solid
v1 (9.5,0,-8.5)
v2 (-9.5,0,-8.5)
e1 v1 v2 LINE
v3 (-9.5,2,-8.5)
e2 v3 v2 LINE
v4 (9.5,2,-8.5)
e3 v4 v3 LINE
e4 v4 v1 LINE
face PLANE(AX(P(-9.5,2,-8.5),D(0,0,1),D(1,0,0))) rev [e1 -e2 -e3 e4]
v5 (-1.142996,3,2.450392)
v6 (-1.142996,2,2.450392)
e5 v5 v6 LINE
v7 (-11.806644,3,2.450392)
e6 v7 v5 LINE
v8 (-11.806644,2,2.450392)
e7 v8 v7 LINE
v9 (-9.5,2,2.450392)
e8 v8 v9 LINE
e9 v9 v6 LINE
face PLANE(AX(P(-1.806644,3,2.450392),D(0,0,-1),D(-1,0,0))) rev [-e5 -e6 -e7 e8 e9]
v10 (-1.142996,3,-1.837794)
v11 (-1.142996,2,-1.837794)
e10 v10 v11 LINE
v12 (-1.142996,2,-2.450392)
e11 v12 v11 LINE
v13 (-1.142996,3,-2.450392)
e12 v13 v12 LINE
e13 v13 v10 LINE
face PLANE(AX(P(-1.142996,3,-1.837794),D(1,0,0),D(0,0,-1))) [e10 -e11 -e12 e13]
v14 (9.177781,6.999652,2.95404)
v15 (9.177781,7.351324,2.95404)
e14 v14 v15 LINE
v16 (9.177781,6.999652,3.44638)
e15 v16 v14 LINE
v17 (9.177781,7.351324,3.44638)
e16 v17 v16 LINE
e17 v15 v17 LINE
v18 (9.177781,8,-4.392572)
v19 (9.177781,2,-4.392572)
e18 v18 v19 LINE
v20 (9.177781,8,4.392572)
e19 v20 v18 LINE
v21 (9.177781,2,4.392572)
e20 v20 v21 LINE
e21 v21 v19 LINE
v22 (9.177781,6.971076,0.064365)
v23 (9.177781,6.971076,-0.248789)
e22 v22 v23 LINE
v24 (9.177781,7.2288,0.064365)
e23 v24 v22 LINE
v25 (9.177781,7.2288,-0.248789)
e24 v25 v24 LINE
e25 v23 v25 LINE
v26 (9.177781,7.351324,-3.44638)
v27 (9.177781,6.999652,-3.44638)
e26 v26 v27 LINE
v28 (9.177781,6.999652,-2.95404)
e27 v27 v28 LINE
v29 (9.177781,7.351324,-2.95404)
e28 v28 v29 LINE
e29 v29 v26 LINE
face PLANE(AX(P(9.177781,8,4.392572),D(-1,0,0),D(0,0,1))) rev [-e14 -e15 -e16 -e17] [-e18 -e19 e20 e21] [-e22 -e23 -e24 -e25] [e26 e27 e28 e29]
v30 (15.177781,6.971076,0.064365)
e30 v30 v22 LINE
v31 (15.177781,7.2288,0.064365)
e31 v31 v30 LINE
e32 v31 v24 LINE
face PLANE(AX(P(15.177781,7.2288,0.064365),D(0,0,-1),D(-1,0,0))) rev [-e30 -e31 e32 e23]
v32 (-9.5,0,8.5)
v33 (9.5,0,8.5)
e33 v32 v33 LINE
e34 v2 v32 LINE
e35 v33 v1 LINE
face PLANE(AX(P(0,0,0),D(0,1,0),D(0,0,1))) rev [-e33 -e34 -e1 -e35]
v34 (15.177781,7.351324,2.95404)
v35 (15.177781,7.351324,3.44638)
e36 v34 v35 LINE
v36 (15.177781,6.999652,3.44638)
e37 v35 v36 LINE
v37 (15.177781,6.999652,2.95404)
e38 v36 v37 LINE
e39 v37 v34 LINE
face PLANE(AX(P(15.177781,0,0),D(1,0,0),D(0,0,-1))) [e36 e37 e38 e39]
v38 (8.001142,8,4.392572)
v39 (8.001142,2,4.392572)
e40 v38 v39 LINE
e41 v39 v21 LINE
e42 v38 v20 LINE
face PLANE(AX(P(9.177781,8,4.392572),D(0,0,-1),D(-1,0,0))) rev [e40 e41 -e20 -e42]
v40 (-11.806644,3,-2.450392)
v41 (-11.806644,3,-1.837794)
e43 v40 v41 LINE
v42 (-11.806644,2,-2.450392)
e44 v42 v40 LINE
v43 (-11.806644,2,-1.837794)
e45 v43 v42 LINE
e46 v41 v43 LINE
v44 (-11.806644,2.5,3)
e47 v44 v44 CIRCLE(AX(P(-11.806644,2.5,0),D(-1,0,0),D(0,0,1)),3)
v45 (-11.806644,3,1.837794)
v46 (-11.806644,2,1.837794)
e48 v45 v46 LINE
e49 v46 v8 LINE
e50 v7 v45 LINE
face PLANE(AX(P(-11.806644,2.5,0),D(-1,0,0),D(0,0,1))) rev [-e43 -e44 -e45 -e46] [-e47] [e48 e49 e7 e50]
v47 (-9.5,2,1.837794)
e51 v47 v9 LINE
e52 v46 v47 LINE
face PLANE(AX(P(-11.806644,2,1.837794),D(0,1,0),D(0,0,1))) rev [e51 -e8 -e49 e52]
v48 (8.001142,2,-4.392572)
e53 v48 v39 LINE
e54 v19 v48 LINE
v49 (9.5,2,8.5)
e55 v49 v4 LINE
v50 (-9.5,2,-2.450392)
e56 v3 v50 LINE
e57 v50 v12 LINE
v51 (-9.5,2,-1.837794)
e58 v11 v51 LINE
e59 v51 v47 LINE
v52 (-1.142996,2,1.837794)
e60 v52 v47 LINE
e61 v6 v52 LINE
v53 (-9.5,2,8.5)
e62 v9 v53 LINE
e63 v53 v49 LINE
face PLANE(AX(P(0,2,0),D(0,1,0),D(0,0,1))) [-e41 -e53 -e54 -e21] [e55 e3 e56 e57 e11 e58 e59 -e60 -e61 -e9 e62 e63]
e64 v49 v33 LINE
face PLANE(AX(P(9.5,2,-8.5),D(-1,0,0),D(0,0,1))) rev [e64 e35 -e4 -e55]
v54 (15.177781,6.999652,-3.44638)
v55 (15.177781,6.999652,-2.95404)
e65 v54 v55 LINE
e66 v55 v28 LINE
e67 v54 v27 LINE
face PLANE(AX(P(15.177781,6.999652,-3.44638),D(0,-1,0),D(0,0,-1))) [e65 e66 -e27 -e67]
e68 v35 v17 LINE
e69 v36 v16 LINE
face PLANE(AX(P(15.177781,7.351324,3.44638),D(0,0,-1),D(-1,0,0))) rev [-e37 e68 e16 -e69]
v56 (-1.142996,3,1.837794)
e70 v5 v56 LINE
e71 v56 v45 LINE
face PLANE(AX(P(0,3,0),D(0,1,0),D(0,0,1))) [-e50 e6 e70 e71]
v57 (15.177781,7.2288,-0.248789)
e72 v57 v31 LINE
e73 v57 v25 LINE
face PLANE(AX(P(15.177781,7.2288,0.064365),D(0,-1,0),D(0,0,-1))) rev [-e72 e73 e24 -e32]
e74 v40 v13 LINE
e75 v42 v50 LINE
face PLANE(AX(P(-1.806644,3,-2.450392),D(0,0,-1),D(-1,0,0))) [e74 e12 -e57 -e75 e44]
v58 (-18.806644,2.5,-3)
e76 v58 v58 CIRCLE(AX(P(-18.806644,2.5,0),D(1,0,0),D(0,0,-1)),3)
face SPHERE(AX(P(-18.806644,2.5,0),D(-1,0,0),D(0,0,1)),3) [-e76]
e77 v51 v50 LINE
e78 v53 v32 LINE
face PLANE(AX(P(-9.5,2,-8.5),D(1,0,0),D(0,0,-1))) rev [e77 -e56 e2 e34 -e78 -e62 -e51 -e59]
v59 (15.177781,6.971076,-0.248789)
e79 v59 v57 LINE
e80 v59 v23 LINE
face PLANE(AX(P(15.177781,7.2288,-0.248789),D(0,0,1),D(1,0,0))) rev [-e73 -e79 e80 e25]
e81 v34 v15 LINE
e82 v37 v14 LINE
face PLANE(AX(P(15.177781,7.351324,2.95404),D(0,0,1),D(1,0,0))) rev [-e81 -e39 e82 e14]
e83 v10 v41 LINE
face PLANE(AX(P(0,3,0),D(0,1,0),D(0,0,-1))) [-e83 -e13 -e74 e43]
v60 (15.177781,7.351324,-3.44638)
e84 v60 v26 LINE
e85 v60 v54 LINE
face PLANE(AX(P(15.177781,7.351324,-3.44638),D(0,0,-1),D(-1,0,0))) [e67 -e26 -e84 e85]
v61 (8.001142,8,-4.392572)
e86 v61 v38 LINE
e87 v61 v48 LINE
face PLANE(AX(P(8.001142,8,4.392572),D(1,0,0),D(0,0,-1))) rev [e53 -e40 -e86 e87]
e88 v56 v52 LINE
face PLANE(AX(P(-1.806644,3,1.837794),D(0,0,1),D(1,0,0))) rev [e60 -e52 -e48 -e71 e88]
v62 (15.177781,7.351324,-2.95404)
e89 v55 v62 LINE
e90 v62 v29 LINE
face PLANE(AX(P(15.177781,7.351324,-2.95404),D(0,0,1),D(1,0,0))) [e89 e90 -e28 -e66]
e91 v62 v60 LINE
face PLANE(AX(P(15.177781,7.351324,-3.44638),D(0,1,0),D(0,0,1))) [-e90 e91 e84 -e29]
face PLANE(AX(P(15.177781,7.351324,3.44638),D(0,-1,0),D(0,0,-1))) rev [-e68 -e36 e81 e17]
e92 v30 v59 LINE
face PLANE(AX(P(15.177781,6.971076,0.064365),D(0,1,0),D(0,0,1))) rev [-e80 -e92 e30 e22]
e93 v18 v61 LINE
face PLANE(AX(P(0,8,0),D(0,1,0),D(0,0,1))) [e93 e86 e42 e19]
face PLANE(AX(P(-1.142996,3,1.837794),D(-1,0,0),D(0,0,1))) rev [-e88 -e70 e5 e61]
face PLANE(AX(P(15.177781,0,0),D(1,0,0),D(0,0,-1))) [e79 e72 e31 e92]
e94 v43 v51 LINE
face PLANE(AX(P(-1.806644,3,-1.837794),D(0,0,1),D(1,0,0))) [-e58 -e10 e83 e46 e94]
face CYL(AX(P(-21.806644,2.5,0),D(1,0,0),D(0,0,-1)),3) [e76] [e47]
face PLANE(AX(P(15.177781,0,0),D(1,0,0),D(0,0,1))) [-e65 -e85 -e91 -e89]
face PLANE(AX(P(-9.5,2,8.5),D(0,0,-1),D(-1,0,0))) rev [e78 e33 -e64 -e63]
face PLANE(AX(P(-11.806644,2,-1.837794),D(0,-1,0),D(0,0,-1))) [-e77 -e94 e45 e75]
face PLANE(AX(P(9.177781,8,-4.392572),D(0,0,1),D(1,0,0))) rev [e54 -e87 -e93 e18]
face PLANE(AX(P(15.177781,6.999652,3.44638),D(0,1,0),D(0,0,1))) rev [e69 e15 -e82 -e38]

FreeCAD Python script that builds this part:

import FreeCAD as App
import Part
import Sketcher
from FreeCAD import Vector
Q = App.Units.Quantity


def edges_at(feature, points):
    """Names of the edges that pass closest to the given points."""
    edges = feature.Shape.Edges
    near = lambda p: min(range(len(edges)), key=lambda i: edges[i].distToShape(Part.Vertex(*p))[0])
    return sorted({f"Edge{near(p) + 1}" for p in points})


def add_polygon(sketch, points):
    """Adds a closed chain of lines whose ends are joined by coincident constraints."""
    first, n = sketch.GeometryCount, len(points)
    for a, b in zip(points, points[1:] + points[:1]):
        sketch.addGeometry(Part.LineSegment(App.Vector(*a, 0), App.Vector(*b, 0)), False)
    for i in range(n):
        sketch.addConstraint(Sketcher.Constraint("Coincident", first + i, 2, first + (i + 1) % n, 1))

doc = App.newDocument("Part")
body = doc.addObject("PartDesign::Body", "Body")

sketch1 = doc.addObject("Sketcher::SketchObject", "Sketch")
body.addObject(sketch1)
sketch1.AttachmentSupport = (doc.XZ_Plane, [""])
sketch1.MapMode = "FlatFace"
add_polygon(sketch1, [(-10, -8), (-10, 8), (10, 8), (10, -8)])
sketch1.addConstraint(Sketcher.Constraint("Vertical", 0))
sketch1.addConstraint(Sketcher.Constraint("Horizontal", 1))
sketch1.addConstraint(Sketcher.Constraint("Vertical", 2))
sketch1.addConstraint(Sketcher.Constraint("Horizontal", 3))
sketch1.addConstraint(Sketcher.Constraint("Symmetric", 0, 2, 2, 2, -1, 1))
sketch1.addConstraint(Sketcher.Constraint("DistanceX", 1, 1, 1, 2, Q("19 mm")))
sketch1.addConstraint(Sketcher.Constraint("DistanceY", 0, 1, 0, 2, Q("17 mm")))
pad1 = doc.addObject("PartDesign::Pad", "Pad")
body.addObject(pad1)
pad1.Profile = sketch1
pad1.Length = 2
pad1.Reversed = True

sketch2 = doc.addObject("Sketcher::SketchObject", "Sketch001")
body.addObject(sketch2)
sketch2.AttachmentSupport = (doc.XZ_Plane, [""])
sketch2.MapMode = "FlatFace"
sketch2.AttachmentOffset = App.Placement(Vector(0, 0, -2), App.Rotation())
add_polygon(sketch2, [(8, -4.4), (8, 4.4), (9.2, 4.4), (9.2, -4.4)])
sketch2.addConstraint(Sketcher.Constraint("Vertical", 0))
sketch2.addConstraint(Sketcher.Constraint("Horizontal", 1))
sketch2.addConstraint(Sketcher.Constraint("Vertical", 2))
sketch2.addConstraint(Sketcher.Constraint("Horizontal", 3))
sketch2.addConstraint(Sketcher.Constraint("DistanceX", 1, 1, 1, 2, Q("1.176639 mm")))
sketch2.addConstraint(Sketcher.Constraint("DistanceY", 0, 1, 0, 2, Q("8.785143 mm")))
sketch2.addConstraint(Sketcher.Constraint("DistanceY", -1, 1, 0, 2, Q("4.392572 mm")))
sketch2.addConstraint(Sketcher.Constraint("DistanceX", -1, 1, 1, 2, Q("9.177781 mm")))
pad2 = doc.addObject("PartDesign::Pad", "Pad001")
body.addObject(pad2)
pad2.Profile = sketch2
pad2.Length = 6
pad2.Reversed = True

sketch3 = doc.addObject("Sketcher::SketchObject", "Sketch002")
body.addObject(sketch3)
sketch3.AttachmentSupport = (doc.YZ_Plane, [""])
sketch3.MapMode = "FlatFace"
sketch3.AttachmentOffset = App.Placement(Vector(0, 0, 9.177781), App.Rotation())
add_polygon(sketch3, [(7.35, 3.45), (7, 3.45), (7, 2.95), (7.35, 2.95)])
sketch3.addConstraint(Sketcher.Constraint("Horizontal", 0))
sketch3.addConstraint(Sketcher.Constraint("Vertical", 1))
sketch3.addConstraint(Sketcher.Constraint("Horizontal", 2))
sketch3.addConstraint(Sketcher.Constraint("Vertical", 3))
sketch3.addConstraint(Sketcher.Constraint("DistanceX", 0, 2, 0, 1, Q("0.351671 mm")))
sketch3.addConstraint(Sketcher.Constraint("DistanceY", 1, 2, 1, 1, Q("0.49234 mm")))
sketch3.addConstraint(Sketcher.Constraint("DistanceY", -1, 1, 0, 2, Q("3.44638 mm")))
sketch3.addConstraint(Sketcher.Constraint("DistanceX", -1, 1, 0, 2, Q("6.999652 mm")))
pad3 = doc.addObject("PartDesign::Pad", "Pad002")
body.addObject(pad3)
pad3.Profile = sketch3
pad3.Length = 6
doc.recompute()

mirrored = doc.addObject("PartDesign::Mirrored", "Mirrored")
body.addObject(mirrored)
mirrored.Originals = [pad3]
mirrored.MirrorPlane = (doc.XY_Plane, [""])
body.Tip = mirrored

sketch4 = doc.addObject("Sketcher::SketchObject", "Sketch003")
body.addObject(sketch4)
sketch4.AttachmentSupport = (doc.YZ_Plane, [""])
sketch4.MapMode = "FlatFace"
sketch4.AttachmentOffset = App.Placement(Vector(0, 0, 9.177781), App.Rotation())
add_polygon(sketch4, [(7.23, 0.06), (6.97, 0.06), (6.97, -0.25), (7.23, -0.25)])
sketch4.addConstraint(Sketcher.Constraint("Horizontal", 0))
sketch4.addConstraint(Sketcher.Constraint("Vertical", 1))
sketch4.addConstraint(Sketcher.Constraint("Horizontal", 2))
sketch4.addConstraint(Sketcher.Constraint("Vertical", 3))
sketch4.addConstraint(Sketcher.Constraint("DistanceX", -1, 1, 2, 2, Q("7.2288 mm")))
sketch4.addConstraint(Sketcher.Constraint("DistanceX", 0, 2, 0, 1, Q("0.257724 mm")))
sketch4.addConstraint(Sketcher.Constraint("DistanceY", 1, 2, 1, 1, Q("0.313154 mm")))
sketch4.addConstraint(Sketcher.Constraint("DistanceY", 1, 2, -1, 1, Q("0.248789 mm")))
pad4 = doc.addObject("PartDesign::Pad", "Pad003")
body.addObject(pad4)
pad4.Profile = sketch4
pad4.Length = 6

sketch5 = doc.addObject("Sketcher::SketchObject", "Sketch004")
body.addObject(sketch5)
sketch5.AttachmentSupport = (doc.XZ_Plane, [""])
sketch5.MapMode = "FlatFace"
sketch5.AttachmentOffset = App.Placement(Vector(0, 0, -2), App.Rotation())
add_polygon(sketch5, [(-1.8, 1.8), (-1.8, 2.5), (-1.1, 2.5), (-1.1, 1.8)])
sketch5.addConstraint(Sketcher.Constraint("Vertical", 0))
sketch5.addConstraint(Sketcher.Constraint("Horizontal", 1))
sketch5.addConstraint(Sketcher.Constraint("Vertical", 2))
sketch5.addConstraint(Sketcher.Constraint("Horizontal", 3))
sketch5.addConstraint(Sketcher.Constraint("DistanceX", 1, 1, 1, 2, Q("0.663648 mm")))
sketch5.addConstraint(Sketcher.Constraint("DistanceY", 0, 1, 0, 2, Q("0.612598 mm")))
sketch5.addConstraint(Sketcher.Constraint("DistanceY", -1, 1, 0, 2, Q("2.450392 mm")))
sketch5.addConstraint(Sketcher.Constraint("DistanceX", 0, 2, -1, 1, Q("1.806644 mm")))
pad5 = doc.addObject("PartDesign::Pad", "Pad004")
body.addObject(pad5)
pad5.Profile = sketch5
pad5.Length = 1
pad5.Reversed = True

sketch6 = doc.addObject("Sketcher::SketchObject", "Sketch005")
body.addObject(sketch6)
sketch6.AttachmentSupport = (doc.YZ_Plane, [""])
sketch6.MapMode = "FlatFace"
sketch6.AttachmentOffset = App.Placement(Vector(0, 0, -1.806644), App.Rotation())
add_polygon(sketch6, [(3, 1.8), (2, 1.8), (2, 2.5), (3, 2.5)])
sketch6.addConstraint(Sketcher.Constraint("Horizontal", 0))
sketch6.addConstraint(Sketcher.Constraint("Vertical", 1))
sketch6.addConstraint(Sketcher.Constraint("Horizontal", 2))
sketch6.addConstraint(Sketcher.Constraint("Vertical", 3))
sketch6.addConstraint(Sketcher.Constraint("DistanceX", 0, 2, 0, 1, Q("1 mm")))
sketch6.addConstraint(Sketcher.Constraint("DistanceX", -1, 1, 0, 2, Q("2 mm")))
sketch6.addConstraint(Sketcher.Constraint("DistanceY", 1, 1, 1, 2, Q("0.612598 mm")))
sketch6.addConstraint(Sketcher.Constraint("DistanceY", -1, 1, 1, 2, Q("2.450392 mm")))
pad6 = doc.addObject("PartDesign::Pad", "Pad005")
body.addObject(pad6)
pad6.Profile = sketch6
pad6.Length = 10
pad6.Reversed = True
doc.recompute()

mirrored2 = doc.addObject("PartDesign::Mirrored", "Mirrored001")
body.addObject(mirrored2)
mirrored2.Originals = [pad5, pad6]
mirrored2.MirrorPlane = (doc.XY_Plane, [""])
body.Tip = mirrored2

sketch7 = doc.addObject("Sketcher::SketchObject", "Sketch006")
body.addObject(sketch7)
sketch7.AttachmentSupport = (doc.YZ_Plane, [""])
sketch7.MapMode = "FlatFace"
sketch7.AttachmentOffset = App.Placement(Vector(0, 0, -11.806644), App.Rotation())
sketch7.addGeometry(Part.Circle(Vector(2.5, 0, 0), Vector(0, 0, 1), 3), False)
sketch7.addConstraint(Sketcher.Constraint("PointOnObject", 0, 3, -1))
sketch7.addConstraint(Sketcher.Constraint("Diameter", 0, Q("6 mm")))
sketch7.addConstraint(Sketcher.Constraint("DistanceX", -1, 1, 0, 3, Q("2.5 mm")))
pad7 = doc.addObject("PartDesign::Pad", "Pad006")
body.addObject(pad7)
pad7.Profile = sketch7
pad7.Length = 10
pad7.Reversed = True
doc.recompute()

fillet = doc.addObject("PartDesign::Fillet", "Fillet")
body.addObject(fillet)
fillet.Base = (pad7, edges_at(pad7, [(-21.807, 2.5, -3)]))
fillet.Radius = 3

doc.recompute()
